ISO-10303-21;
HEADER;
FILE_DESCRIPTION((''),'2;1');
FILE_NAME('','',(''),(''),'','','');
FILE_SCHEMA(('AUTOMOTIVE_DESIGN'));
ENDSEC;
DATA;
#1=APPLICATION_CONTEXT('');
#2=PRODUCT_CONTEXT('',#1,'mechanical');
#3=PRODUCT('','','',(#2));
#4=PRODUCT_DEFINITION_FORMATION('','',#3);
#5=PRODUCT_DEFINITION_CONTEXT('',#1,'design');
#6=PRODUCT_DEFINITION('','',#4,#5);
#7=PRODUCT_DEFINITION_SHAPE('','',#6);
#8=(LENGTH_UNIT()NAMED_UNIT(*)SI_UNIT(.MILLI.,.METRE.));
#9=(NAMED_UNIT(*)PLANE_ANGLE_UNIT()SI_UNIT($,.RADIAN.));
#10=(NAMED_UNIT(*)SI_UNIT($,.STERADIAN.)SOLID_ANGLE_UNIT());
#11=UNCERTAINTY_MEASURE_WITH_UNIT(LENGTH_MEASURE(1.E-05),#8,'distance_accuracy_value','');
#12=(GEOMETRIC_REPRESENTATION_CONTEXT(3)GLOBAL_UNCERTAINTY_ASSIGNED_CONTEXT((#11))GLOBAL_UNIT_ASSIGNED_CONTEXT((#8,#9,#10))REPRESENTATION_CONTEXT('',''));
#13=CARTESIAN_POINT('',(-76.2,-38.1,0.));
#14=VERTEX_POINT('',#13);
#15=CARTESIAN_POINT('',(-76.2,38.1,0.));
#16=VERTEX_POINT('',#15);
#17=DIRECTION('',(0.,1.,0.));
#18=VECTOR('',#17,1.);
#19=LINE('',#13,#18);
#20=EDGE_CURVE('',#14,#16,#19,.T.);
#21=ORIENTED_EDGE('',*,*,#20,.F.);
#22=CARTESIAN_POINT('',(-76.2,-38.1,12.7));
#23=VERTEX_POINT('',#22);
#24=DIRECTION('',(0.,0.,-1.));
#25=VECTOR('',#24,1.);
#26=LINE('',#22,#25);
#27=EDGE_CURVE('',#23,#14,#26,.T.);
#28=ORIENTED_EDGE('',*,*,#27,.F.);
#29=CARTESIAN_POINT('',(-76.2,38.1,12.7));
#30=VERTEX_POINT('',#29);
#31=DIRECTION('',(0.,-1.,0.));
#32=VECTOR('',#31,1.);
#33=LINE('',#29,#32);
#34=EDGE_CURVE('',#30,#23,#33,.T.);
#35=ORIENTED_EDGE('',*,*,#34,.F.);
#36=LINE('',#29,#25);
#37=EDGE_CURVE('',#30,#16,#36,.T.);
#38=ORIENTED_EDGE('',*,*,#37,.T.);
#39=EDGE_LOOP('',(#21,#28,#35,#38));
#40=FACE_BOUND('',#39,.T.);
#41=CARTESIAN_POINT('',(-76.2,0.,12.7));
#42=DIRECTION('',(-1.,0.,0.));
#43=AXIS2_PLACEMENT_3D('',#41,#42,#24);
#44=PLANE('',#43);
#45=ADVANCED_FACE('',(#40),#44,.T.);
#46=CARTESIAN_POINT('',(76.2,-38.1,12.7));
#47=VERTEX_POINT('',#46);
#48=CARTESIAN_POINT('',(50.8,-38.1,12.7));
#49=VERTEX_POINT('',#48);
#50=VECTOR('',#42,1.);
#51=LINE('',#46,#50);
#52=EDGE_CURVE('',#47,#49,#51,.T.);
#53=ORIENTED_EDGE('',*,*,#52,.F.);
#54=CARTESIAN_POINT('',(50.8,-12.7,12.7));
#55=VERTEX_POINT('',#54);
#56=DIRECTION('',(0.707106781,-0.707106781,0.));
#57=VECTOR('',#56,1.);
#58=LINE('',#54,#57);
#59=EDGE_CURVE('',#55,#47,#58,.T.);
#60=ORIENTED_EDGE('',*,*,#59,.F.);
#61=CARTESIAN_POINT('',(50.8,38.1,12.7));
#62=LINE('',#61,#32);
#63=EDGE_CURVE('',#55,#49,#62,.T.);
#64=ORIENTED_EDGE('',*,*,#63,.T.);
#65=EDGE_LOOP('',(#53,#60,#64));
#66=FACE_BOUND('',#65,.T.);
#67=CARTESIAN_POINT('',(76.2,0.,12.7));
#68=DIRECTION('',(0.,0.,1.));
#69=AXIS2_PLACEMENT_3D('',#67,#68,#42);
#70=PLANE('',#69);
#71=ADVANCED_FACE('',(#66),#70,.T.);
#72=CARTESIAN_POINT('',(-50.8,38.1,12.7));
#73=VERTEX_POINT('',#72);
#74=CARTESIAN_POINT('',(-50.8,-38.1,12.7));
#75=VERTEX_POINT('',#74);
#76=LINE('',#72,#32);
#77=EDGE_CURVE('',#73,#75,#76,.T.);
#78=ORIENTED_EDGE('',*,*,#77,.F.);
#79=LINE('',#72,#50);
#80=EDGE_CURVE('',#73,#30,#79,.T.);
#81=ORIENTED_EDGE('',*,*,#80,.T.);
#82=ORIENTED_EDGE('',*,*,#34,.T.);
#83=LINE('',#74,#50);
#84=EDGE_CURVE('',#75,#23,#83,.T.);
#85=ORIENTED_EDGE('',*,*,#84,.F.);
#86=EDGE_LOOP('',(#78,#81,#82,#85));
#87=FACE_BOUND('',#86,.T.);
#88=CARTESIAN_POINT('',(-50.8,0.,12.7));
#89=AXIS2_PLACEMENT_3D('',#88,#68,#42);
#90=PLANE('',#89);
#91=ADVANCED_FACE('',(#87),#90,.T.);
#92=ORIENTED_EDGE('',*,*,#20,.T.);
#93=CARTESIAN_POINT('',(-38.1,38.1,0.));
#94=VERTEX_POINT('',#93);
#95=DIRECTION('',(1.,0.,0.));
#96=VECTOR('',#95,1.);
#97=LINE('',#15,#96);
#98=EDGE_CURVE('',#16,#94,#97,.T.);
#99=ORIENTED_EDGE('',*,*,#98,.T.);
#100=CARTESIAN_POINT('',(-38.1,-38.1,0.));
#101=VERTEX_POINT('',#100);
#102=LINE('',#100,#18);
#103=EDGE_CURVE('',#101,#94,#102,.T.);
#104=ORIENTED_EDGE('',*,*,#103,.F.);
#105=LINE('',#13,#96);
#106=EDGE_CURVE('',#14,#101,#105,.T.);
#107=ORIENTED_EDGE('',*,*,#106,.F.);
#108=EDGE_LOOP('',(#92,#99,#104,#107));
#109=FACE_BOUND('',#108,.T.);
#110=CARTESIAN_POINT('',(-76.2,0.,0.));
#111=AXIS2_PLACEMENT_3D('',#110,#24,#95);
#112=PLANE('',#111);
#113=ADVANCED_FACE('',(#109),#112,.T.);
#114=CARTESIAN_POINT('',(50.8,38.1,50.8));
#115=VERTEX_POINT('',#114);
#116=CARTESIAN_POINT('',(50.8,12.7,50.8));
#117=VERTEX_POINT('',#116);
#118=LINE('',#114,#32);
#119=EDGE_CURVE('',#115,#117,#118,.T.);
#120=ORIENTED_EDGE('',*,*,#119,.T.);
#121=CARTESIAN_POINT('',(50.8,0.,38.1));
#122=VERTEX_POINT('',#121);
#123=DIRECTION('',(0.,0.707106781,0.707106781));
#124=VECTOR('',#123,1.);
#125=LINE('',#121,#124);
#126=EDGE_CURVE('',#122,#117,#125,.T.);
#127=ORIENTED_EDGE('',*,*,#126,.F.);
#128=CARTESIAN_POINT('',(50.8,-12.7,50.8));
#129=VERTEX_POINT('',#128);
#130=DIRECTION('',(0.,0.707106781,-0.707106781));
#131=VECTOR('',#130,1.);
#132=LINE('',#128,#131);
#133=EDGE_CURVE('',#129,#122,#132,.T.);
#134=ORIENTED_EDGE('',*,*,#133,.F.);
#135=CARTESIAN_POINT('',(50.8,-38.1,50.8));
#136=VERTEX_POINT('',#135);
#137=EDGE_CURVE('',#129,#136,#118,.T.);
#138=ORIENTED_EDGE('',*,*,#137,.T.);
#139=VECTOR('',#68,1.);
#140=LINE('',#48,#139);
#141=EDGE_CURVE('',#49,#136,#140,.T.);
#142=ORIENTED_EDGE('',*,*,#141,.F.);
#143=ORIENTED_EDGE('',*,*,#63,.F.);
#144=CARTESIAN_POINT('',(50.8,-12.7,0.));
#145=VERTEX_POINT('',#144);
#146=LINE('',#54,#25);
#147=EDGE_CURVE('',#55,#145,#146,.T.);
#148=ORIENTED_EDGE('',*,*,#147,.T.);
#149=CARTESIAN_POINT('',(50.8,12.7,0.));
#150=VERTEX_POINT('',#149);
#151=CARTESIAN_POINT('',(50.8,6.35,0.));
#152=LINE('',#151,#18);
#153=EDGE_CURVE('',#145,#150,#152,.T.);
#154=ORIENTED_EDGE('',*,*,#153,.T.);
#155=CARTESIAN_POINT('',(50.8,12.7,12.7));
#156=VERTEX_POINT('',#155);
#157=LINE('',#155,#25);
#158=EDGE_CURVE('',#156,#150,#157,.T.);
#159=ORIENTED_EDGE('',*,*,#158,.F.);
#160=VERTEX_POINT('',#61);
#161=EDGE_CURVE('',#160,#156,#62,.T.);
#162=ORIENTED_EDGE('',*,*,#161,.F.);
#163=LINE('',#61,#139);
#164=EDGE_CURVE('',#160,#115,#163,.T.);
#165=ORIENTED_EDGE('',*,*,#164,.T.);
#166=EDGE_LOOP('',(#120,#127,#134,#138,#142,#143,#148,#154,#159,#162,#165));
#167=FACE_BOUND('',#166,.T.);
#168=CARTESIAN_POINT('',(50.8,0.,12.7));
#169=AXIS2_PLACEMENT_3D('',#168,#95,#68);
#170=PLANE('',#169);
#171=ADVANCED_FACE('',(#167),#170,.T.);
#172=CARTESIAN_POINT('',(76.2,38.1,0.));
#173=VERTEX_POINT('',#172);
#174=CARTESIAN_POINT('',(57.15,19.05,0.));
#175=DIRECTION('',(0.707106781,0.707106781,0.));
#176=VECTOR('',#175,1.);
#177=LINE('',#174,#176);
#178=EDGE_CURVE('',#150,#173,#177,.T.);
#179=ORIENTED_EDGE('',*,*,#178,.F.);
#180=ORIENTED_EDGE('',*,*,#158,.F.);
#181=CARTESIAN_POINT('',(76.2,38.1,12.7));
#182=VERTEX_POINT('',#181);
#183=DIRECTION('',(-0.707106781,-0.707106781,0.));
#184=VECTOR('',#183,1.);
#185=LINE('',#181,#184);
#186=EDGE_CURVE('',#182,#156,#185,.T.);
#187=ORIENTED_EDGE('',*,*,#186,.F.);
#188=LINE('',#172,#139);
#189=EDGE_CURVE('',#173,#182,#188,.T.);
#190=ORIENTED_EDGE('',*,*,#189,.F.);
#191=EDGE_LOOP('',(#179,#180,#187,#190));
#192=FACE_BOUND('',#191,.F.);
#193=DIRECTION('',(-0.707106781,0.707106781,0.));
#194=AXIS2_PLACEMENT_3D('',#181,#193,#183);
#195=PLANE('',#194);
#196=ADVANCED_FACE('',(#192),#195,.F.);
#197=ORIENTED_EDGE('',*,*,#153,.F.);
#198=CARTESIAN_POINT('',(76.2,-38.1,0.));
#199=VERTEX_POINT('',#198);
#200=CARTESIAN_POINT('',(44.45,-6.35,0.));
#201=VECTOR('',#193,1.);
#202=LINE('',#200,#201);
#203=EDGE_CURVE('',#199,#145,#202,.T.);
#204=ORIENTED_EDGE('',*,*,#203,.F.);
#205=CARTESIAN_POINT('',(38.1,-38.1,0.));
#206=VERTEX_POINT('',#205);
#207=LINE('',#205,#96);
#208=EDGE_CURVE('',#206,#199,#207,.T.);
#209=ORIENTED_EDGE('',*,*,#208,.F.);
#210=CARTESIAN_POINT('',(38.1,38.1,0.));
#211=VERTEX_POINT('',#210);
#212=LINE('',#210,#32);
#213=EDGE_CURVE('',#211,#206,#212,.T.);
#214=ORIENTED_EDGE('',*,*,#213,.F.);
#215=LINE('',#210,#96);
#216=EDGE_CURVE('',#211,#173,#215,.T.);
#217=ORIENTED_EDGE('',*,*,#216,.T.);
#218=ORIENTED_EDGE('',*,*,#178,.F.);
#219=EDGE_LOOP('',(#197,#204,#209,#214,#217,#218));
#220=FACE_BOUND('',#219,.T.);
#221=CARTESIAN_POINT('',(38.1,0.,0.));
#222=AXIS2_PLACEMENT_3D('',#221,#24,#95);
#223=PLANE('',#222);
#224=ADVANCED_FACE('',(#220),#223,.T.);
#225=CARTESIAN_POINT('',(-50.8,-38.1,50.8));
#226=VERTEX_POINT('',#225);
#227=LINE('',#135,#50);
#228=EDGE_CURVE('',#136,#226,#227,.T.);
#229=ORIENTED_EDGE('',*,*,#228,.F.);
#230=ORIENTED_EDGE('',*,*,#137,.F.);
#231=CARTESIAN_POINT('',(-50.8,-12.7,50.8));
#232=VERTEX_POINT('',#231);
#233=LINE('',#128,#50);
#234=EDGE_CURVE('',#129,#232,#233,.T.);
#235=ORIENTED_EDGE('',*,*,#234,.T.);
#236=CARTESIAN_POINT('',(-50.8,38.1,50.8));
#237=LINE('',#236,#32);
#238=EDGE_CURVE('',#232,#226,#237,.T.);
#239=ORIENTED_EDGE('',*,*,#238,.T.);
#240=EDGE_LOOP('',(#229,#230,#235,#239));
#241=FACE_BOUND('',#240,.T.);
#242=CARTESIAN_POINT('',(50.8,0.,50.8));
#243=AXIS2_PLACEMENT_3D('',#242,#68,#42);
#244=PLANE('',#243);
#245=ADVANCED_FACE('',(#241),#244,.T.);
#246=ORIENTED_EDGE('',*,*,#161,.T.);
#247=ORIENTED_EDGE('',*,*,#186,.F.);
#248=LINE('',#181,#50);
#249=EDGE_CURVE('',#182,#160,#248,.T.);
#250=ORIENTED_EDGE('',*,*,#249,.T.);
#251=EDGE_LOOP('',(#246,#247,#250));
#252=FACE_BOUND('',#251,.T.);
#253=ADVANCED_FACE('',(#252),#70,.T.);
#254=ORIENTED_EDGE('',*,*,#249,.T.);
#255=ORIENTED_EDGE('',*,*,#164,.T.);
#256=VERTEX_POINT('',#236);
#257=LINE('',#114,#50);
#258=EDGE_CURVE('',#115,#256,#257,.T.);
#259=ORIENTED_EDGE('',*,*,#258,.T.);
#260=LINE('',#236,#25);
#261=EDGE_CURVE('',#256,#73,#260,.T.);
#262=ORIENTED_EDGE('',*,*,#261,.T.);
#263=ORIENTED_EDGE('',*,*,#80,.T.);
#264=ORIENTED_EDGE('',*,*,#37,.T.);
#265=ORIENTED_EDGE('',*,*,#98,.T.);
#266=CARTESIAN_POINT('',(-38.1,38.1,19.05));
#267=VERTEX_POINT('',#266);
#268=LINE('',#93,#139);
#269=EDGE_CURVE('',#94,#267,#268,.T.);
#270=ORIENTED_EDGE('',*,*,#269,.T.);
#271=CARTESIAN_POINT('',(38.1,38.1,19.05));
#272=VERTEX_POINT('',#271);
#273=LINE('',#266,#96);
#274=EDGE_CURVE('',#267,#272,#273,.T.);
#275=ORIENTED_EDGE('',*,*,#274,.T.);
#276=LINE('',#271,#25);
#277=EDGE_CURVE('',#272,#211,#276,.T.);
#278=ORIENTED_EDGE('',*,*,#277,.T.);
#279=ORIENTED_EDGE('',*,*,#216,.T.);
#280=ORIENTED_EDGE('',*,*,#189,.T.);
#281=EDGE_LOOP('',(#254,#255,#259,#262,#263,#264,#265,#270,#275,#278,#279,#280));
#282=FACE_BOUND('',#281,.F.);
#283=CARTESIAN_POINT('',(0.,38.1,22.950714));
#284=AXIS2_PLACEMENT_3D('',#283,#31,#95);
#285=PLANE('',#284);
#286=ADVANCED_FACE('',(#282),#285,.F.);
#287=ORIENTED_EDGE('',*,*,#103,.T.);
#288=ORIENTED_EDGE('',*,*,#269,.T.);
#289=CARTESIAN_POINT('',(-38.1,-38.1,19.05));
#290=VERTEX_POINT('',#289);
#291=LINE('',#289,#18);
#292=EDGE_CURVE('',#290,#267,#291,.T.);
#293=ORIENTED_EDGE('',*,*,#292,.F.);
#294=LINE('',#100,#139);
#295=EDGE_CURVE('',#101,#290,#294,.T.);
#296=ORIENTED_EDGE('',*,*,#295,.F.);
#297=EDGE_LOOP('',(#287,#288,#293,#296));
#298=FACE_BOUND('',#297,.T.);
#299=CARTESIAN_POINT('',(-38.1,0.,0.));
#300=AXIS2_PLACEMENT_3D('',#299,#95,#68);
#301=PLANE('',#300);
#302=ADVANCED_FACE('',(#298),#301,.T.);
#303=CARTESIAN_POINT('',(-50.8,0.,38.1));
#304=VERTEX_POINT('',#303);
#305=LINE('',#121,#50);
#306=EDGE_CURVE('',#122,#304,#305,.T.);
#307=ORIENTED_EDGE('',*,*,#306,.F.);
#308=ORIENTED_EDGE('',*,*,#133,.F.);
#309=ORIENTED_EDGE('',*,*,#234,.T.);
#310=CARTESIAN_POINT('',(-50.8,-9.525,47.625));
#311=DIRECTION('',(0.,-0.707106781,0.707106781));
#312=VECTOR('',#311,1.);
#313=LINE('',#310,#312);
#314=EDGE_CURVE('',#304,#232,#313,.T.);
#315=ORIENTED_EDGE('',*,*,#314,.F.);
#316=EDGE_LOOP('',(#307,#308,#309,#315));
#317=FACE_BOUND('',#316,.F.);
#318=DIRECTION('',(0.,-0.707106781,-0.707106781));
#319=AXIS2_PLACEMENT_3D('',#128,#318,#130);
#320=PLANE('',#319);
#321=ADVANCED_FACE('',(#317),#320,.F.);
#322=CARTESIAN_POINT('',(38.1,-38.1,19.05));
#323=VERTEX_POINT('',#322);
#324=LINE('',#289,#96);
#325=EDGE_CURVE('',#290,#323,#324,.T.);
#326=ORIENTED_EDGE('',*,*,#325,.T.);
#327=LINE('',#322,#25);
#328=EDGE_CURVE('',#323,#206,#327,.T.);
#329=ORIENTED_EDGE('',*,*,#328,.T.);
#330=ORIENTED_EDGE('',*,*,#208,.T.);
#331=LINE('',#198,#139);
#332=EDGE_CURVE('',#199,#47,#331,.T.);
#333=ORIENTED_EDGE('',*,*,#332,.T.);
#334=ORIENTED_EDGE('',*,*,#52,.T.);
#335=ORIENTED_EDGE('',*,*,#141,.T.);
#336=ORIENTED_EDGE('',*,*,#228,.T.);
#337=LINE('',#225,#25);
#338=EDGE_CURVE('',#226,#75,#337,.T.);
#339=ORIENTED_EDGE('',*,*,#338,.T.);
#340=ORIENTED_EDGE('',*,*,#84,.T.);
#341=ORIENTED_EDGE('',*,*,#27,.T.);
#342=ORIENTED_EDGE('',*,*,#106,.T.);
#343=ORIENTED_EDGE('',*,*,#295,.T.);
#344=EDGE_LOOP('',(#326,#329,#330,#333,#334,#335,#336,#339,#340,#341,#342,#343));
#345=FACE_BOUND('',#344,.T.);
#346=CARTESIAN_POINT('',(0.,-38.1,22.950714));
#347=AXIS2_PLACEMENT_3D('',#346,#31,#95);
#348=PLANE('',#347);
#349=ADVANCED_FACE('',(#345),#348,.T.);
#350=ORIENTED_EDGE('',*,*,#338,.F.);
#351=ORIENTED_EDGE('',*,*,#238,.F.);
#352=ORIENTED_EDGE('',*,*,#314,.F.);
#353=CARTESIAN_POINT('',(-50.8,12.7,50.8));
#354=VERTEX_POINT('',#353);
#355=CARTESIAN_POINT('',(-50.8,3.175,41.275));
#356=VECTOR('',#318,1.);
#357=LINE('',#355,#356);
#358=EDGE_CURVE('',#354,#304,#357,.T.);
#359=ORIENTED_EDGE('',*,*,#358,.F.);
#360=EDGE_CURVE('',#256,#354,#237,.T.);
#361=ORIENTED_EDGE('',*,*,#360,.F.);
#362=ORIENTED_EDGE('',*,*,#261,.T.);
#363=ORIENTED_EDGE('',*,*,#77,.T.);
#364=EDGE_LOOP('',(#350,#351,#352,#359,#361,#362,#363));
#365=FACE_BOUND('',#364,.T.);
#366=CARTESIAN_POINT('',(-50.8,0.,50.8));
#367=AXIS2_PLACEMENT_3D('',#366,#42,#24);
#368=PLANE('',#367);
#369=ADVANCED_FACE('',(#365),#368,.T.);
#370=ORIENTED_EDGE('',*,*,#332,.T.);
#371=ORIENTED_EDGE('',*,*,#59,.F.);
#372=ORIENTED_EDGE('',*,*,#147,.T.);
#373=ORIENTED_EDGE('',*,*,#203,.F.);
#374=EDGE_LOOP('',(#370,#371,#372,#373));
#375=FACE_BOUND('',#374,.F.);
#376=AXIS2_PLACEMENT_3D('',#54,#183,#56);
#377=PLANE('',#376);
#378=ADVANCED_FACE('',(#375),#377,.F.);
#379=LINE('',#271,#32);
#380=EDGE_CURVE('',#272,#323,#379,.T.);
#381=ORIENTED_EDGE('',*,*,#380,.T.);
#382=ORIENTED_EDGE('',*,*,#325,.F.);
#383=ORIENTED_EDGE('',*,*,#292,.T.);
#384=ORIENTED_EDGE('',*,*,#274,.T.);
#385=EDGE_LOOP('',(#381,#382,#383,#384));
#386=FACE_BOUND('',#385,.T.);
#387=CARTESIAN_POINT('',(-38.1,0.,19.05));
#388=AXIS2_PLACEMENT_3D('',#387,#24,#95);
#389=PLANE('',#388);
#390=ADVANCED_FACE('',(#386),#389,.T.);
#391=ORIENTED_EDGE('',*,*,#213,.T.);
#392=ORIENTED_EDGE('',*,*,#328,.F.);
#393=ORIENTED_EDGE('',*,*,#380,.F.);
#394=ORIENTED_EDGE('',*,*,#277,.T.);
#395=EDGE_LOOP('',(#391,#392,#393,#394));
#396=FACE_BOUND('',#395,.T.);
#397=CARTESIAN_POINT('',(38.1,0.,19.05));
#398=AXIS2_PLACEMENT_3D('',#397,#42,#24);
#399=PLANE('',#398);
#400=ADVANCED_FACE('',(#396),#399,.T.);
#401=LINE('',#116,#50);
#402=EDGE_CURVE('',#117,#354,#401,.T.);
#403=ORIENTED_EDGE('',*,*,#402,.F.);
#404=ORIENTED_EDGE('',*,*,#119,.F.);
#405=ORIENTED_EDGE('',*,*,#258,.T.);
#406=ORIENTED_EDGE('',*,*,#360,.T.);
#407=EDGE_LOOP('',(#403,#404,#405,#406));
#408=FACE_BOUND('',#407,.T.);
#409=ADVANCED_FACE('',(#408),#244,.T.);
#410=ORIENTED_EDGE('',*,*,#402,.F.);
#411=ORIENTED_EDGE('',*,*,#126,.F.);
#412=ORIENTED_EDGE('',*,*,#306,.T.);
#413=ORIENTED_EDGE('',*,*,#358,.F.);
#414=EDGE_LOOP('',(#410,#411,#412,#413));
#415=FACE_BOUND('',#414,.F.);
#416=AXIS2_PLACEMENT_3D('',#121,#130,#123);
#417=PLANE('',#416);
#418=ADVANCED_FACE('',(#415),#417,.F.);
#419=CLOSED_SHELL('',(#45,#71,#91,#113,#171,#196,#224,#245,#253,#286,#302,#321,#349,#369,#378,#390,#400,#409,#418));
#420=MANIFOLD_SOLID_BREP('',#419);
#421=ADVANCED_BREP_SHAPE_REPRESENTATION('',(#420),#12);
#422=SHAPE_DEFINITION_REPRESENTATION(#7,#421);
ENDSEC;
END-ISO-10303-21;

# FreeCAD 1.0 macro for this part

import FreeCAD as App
import Part
import Sketcher
Q = App.Units.Quantity

doc = App.newDocument("Part")
body = doc.addObject("PartDesign::Body", "Body")

sketch1 = body.newObject("Sketcher::SketchObject", "Sketch")
sketch1.AttachmentSupport = (doc.getObject("XZ_Plane"), [""])
sketch1.MapMode = "FlatFace"
sketch1.addGeometry([
    Part.LineSegment(App.Vector(-38.1, 19.05, 0), App.Vector(38.1, 19.05, 0)),
    Part.LineSegment(App.Vector(38.1, 19.05, 0), App.Vector(38.1, 0, 0)),
    Part.LineSegment(App.Vector(38.1, 0, 0), App.Vector(76.2, 0, 0)),
    Part.LineSegment(App.Vector(76.2, 0, 0), App.Vector(76.2, 12.7, 0)),
    Part.LineSegment(App.Vector(76.2, 12.7, 0), App.Vector(50.8, 12.7, 0)),
    Part.LineSegment(App.Vector(50.8, 12.7, 0), App.Vector(50.8, 50.8, 0)),
    Part.LineSegment(App.Vector(50.8, 50.8, 0), App.Vector(-50.8, 50.8, 0)),
    Part.LineSegment(App.Vector(-50.8, 50.8, 0), App.Vector(-50.8, 12.7, 0)),
    Part.LineSegment(App.Vector(-50.8, 12.7, 0), App.Vector(-76.2, 12.7, 0)),
    Part.LineSegment(App.Vector(-76.2, 12.7, 0), App.Vector(-76.2, 0, 0)),
    Part.LineSegment(App.Vector(-76.2, 0, 0), App.Vector(-38.1, 0, 0)),
    Part.LineSegment(App.Vector(-38.1, 0, 0), App.Vector(-38.1, 19.05, 0)),
], False)
sketch1.addConstraint([
    Sketcher.Constraint("Coincident", 0, 2, 1, 1),
    Sketcher.Constraint("Coincident", 1, 2, 2, 1),
    Sketcher.Constraint("Coincident", 2, 2, 3, 1),
    Sketcher.Constraint("Coincident", 3, 2, 4, 1),
    Sketcher.Constraint("Coincident", 4, 2, 5, 1),
    Sketcher.Constraint("Coincident", 5, 2, 6, 1),
    Sketcher.Constraint("Coincident", 6, 2, 7, 1),
    Sketcher.Constraint("Coincident", 7, 2, 8, 1),
    Sketcher.Constraint("Coincident", 8, 2, 9, 1),
    Sketcher.Constraint("Coincident", 9, 2, 10, 1),
    Sketcher.Constraint("Coincident", 10, 2, 11, 1),
    Sketcher.Constraint("Coincident", 11, 2, 0, 1),
    Sketcher.Constraint("Horizontal", 0),
    Sketcher.Constraint("Vertical", 1),
    Sketcher.Constraint("Horizontal", 2),
    Sketcher.Constraint("Vertical", 3),
    Sketcher.Constraint("Horizontal", 4),
    Sketcher.Constraint("Vertical", 5),
    Sketcher.Constraint("Horizontal", 6),
    Sketcher.Constraint("Vertical", 7),
    Sketcher.Constraint("Horizontal", 8),
    Sketcher.Constraint("Vertical", 9),
    Sketcher.Constraint("Horizontal", 10),
    Sketcher.Constraint("Vertical", 11),
    Sketcher.Constraint("Symmetric", 2, 2, 9, 2, -1, 1),
    Sketcher.Constraint("Symmetric", 4, 2, 7, 2, -2),
    Sketcher.Constraint("Symmetric", 1, 2, 10, 2, -2),
    Sketcher.Constraint("Equal", 10, 5),
    Sketcher.Constraint("DistanceX", 0, 1, 0, 2, Q("3 in")),
    Sketcher.Constraint("DistanceX", 4, 2, 4, 1, Q("1 in")),
    Sketcher.Constraint("DistanceX", 6, 2, 6, 1, Q("4 in")),
    Sketcher.Constraint("DistanceY", 3, 1, 3, 2, Q("0.5 in")),
    Sketcher.Constraint("DistanceY", 1, 2, 1, 1, Q("0.75 in")),
])
pad1 = body.newObject("PartDesign::Pad", "Pad")
pad1.Profile = sketch1
pad1.Length = Q("3 in")
pad1.Midplane = True

sketch2 = body.newObject("Sketcher::SketchObject", "Sketch001")
sketch2.AttachmentSupport = (doc.getObject("XY_Plane"), [""])
sketch2.MapMode = "FlatFace"
sketch2.AttachmentOffset = App.Placement(App.Vector(0, 0, 0.5 * 25.4), App.Rotation())
sketch2.addGeometry([
    Part.LineSegment(App.Vector(50.8, -12.7, 0), App.Vector(76.2, -38.1, 0)),
    Part.LineSegment(App.Vector(76.2, -38.1, 0), App.Vector(76.2, 38.1, 0)),
    Part.LineSegment(App.Vector(76.2, 38.1, 0), App.Vector(50.8, 12.7, 0)),
    Part.LineSegment(App.Vector(50.8, 12.7, 0), App.Vector(50.8, -12.7, 0)),
], False)
sketch2.addConstraint([
    Sketcher.Constraint("Coincident", 0, 2, 1, 1),
    Sketcher.Constraint("Coincident", 1, 2, 2, 1),
    Sketcher.Constraint("Coincident", 2, 2, 3, 1),
    Sketcher.Constraint("Coincident", 3, 2, 0, 1),
    Sketcher.Constraint("Vertical", 1),
    Sketcher.Constraint("Vertical", 3),
    Sketcher.Constraint("Perpendicular", 0, 2),
    Sketcher.Constraint("Equal", 0, 2),
    Sketcher.Constraint("DistanceY", 1, 1, 1, 2, Q("3 in")),
    Sketcher.Constraint("DistanceY", 3, 2, 3, 1, Q("1 in")),
    Sketcher.Constraint("DistanceX", -1, 1, 0, 2, Q("3 in")),
    Sketcher.Constraint("DistanceY", 0, 2, -1, 1, Q("1.5 in")),
])
pocket1 = body.newObject("PartDesign::Pocket", "Pocket")
pocket1.Profile = sketch2
pocket1.Type = "ThroughAll"

sketch3 = body.newObject("Sketcher::SketchObject", "Sketch002")
sketch3.AttachmentSupport = (doc.getObject("YZ_Plane"), [""])
sketch3.MapMode = "FlatFace"
sketch3.AttachmentOffset = App.Placement(App.Vector(0, 0, 2 * 25.4), App.Rotation())
sketch3.addGeometry([
    Part.LineSegment(App.Vector(12.7, 50.8, 0), App.Vector(-12.7, 50.8, 0)),
    Part.LineSegment(App.Vector(-12.7, 50.8, 0), App.Vector(0, 38.1, 0)),
    Part.LineSegment(App.Vector(0, 38.1, 0), App.Vector(12.7, 50.8, 0)),
], False)
sketch3.addConstraint([
    Sketcher.Constraint("Coincident", 0, 2, 1, 1),
    Sketcher.Constraint("Coincident", 1, 2, 2, 1),
    Sketcher.Constraint("Coincident", 2, 2, 0, 1),
    Sketcher.Constraint("Horizontal", 0),
    Sketcher.Constraint("PointOnObject", 1, 2, -2),
    Sketcher.Constraint("Perpendicular", 1, 2),
    Sketcher.Constraint("Equal", 1, 2),
    Sketcher.Constraint("DistanceX", 0, 2, 0, 1, Q("1 in")),
    Sketcher.Constraint("DistanceY", -1, 1, 0, 2, Q("2 in")),
])
pocket2 = body.newObject("PartDesign::Pocket", "Pocket001")
pocket2.Profile = sketch3
pocket2.Type = "ThroughAll"

doc.recompute()
